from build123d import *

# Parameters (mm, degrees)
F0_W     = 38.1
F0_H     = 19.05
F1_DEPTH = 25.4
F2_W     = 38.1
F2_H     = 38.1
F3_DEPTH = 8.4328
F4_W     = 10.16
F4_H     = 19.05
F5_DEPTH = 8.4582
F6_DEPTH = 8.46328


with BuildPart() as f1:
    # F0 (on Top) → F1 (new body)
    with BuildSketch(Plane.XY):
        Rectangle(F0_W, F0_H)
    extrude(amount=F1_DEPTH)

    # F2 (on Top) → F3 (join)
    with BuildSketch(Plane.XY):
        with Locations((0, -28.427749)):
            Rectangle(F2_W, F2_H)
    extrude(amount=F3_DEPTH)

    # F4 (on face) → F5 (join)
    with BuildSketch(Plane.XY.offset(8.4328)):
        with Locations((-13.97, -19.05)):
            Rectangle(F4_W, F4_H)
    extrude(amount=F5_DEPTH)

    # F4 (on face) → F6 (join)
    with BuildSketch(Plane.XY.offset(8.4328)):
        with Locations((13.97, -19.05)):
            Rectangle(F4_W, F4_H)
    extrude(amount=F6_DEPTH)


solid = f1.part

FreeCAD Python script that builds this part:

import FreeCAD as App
import Part
import Sketcher

V = App.Vector
Q = App.Units.Quantity


def add_polygon(sketch, points):
    """Adds a closed chain of lines whose ends are joined by coincident constraints."""
    first, n = sketch.GeometryCount, len(points)
    for a, b in zip(points, points[1:] + points[:1]):
        sketch.addGeometry(Part.LineSegment(App.Vector(*a, 0), App.Vector(*b, 0)), False)
    for i in range(n):
        sketch.addConstraint(Sketcher.Constraint("Coincident", first + i, 2, first + (i + 1) % n, 1))

doc = App.newDocument("Part")
body = doc.addObject("PartDesign::Body", "Body")

sketch1 = body.newObject("Sketcher::SketchObject", "Sketch")
sketch1.AttachmentSupport = (doc.getObject("XY_Plane"), [""])
sketch1.MapMode = "FlatFace"
add_polygon(sketch1, [(-19, 10), (-19, -10), (19, -10), (19, 10)])
sketch1.addConstraint([
    Sketcher.Constraint("Vertical", 0),
    Sketcher.Constraint("Horizontal", 1),
    Sketcher.Constraint("Vertical", 2),
    Sketcher.Constraint("Horizontal", 3),
    Sketcher.Constraint("Symmetric", 0, 2, 2, 2, -1, 1),
    Sketcher.Constraint("DistanceX", 1, 1, 1, 2, Q("1.5 in")),
    Sketcher.Constraint("DistanceY", 0, 2, 0, 1, Q("0.75 in")),
])
pad1 = body.newObject("PartDesign::Pad", "Pad")
pad1.Profile = sketch1
pad1.Length = Q("1 in")

sketch2 = body.newObject("Sketcher::SketchObject", "Sketch001")
sketch2.AttachmentSupport = (doc.getObject("XY_Plane"), [""])
sketch2.MapMode = "FlatFace"
add_polygon(sketch2, [(-19, -9), (-19, -47), (19, -47), (19, -9)])
sketch2.addConstraint([
    Sketcher.Constraint("Vertical", 0),
    Sketcher.Constraint("Horizontal", 1),
    Sketcher.Constraint("Vertical", 2),
    Sketcher.Constraint("Horizontal", 3),
    Sketcher.Constraint("Equal", 3, 0),
    Sketcher.Constraint("DistanceX", 1, 1, 1, 2, Q("1.5 in")),
    Sketcher.Constraint("DistanceX", 0, 2, -1, 1, Q("0.75 in")),
    Sketcher.Constraint("DistanceY", 0, 2, -1, 1, Q("47.477749 mm")),
])
pad2 = body.newObject("PartDesign::Pad", "Pad001")
pad2.Profile = sketch2
pad2.Length = Q("0.332 in")

sketch3 = body.newObject("Sketcher::SketchObject", "Sketch002")
sketch3.AttachmentSupport = (doc.getObject("XY_Plane"), [""])
sketch3.MapMode = "FlatFace"
sketch3.AttachmentOffset = App.Placement(V(0, 0, 0.332 * 25.4), App.Rotation())
add_polygon(sketch3, [(-19, -10), (-19, -29), (-9, -29), (-9, -10)])
sketch3.addConstraint([
    Sketcher.Constraint("Vertical", 0),
    Sketcher.Constraint("Horizontal", 1),
    Sketcher.Constraint("Vertical", 2),
    Sketcher.Constraint("Horizontal", 3),
    Sketcher.Constraint("DistanceX", 1, 1, 1, 2, Q("0.4 in")),
    Sketcher.Constraint("DistanceY", 0, 2, 0, 1, Q("0.75 in")),
    Sketcher.Constraint("DistanceX", 0, 2, -1, 1, Q("0.75 in")),
    Sketcher.Constraint("DistanceY", 0, 2, -1, 1, Q("1.125 in")),
])
pad3 = body.newObject("PartDesign::Pad", "Pad002")
pad3.Profile = sketch3
pad3.Length = Q("0.333 in")

sketch4 = body.newObject("Sketcher::SketchObject", "Sketch003")
sketch4.AttachmentSupport = (doc.getObject("XY_Plane"), [""])
sketch4.MapMode = "FlatFace"
sketch4.AttachmentOffset = App.Placement(V(0, 0, 0.332 * 25.4), App.Rotation())
add_polygon(sketch4, [(9, -10), (9, -29), (19, -29), (19, -10)])
sketch4.addConstraint([
    Sketcher.Constraint("Vertical", 0),
    Sketcher.Constraint("Horizontal", 1),
    Sketcher.Constraint("Vertical", 2),
    Sketcher.Constraint("Horizontal", 3),
    Sketcher.Constraint("DistanceX", 1, 1, 1, 2, Q("0.4 in")),
    Sketcher.Constraint("DistanceY", 0, 2, 0, 1, Q("0.75 in")),
    Sketcher.Constraint("DistanceX", -1, 1, 0, 2, Q("0.35 in")),
    Sketcher.Constraint("DistanceY", 0, 2, -1, 1, Q("1.125 in")),
])
pad4 = body.newObject("PartDesign::Pad", "Pad003")
pad4.Profile = sketch4
pad4.Length = Q("0.3332 in")

doc.recompute()
